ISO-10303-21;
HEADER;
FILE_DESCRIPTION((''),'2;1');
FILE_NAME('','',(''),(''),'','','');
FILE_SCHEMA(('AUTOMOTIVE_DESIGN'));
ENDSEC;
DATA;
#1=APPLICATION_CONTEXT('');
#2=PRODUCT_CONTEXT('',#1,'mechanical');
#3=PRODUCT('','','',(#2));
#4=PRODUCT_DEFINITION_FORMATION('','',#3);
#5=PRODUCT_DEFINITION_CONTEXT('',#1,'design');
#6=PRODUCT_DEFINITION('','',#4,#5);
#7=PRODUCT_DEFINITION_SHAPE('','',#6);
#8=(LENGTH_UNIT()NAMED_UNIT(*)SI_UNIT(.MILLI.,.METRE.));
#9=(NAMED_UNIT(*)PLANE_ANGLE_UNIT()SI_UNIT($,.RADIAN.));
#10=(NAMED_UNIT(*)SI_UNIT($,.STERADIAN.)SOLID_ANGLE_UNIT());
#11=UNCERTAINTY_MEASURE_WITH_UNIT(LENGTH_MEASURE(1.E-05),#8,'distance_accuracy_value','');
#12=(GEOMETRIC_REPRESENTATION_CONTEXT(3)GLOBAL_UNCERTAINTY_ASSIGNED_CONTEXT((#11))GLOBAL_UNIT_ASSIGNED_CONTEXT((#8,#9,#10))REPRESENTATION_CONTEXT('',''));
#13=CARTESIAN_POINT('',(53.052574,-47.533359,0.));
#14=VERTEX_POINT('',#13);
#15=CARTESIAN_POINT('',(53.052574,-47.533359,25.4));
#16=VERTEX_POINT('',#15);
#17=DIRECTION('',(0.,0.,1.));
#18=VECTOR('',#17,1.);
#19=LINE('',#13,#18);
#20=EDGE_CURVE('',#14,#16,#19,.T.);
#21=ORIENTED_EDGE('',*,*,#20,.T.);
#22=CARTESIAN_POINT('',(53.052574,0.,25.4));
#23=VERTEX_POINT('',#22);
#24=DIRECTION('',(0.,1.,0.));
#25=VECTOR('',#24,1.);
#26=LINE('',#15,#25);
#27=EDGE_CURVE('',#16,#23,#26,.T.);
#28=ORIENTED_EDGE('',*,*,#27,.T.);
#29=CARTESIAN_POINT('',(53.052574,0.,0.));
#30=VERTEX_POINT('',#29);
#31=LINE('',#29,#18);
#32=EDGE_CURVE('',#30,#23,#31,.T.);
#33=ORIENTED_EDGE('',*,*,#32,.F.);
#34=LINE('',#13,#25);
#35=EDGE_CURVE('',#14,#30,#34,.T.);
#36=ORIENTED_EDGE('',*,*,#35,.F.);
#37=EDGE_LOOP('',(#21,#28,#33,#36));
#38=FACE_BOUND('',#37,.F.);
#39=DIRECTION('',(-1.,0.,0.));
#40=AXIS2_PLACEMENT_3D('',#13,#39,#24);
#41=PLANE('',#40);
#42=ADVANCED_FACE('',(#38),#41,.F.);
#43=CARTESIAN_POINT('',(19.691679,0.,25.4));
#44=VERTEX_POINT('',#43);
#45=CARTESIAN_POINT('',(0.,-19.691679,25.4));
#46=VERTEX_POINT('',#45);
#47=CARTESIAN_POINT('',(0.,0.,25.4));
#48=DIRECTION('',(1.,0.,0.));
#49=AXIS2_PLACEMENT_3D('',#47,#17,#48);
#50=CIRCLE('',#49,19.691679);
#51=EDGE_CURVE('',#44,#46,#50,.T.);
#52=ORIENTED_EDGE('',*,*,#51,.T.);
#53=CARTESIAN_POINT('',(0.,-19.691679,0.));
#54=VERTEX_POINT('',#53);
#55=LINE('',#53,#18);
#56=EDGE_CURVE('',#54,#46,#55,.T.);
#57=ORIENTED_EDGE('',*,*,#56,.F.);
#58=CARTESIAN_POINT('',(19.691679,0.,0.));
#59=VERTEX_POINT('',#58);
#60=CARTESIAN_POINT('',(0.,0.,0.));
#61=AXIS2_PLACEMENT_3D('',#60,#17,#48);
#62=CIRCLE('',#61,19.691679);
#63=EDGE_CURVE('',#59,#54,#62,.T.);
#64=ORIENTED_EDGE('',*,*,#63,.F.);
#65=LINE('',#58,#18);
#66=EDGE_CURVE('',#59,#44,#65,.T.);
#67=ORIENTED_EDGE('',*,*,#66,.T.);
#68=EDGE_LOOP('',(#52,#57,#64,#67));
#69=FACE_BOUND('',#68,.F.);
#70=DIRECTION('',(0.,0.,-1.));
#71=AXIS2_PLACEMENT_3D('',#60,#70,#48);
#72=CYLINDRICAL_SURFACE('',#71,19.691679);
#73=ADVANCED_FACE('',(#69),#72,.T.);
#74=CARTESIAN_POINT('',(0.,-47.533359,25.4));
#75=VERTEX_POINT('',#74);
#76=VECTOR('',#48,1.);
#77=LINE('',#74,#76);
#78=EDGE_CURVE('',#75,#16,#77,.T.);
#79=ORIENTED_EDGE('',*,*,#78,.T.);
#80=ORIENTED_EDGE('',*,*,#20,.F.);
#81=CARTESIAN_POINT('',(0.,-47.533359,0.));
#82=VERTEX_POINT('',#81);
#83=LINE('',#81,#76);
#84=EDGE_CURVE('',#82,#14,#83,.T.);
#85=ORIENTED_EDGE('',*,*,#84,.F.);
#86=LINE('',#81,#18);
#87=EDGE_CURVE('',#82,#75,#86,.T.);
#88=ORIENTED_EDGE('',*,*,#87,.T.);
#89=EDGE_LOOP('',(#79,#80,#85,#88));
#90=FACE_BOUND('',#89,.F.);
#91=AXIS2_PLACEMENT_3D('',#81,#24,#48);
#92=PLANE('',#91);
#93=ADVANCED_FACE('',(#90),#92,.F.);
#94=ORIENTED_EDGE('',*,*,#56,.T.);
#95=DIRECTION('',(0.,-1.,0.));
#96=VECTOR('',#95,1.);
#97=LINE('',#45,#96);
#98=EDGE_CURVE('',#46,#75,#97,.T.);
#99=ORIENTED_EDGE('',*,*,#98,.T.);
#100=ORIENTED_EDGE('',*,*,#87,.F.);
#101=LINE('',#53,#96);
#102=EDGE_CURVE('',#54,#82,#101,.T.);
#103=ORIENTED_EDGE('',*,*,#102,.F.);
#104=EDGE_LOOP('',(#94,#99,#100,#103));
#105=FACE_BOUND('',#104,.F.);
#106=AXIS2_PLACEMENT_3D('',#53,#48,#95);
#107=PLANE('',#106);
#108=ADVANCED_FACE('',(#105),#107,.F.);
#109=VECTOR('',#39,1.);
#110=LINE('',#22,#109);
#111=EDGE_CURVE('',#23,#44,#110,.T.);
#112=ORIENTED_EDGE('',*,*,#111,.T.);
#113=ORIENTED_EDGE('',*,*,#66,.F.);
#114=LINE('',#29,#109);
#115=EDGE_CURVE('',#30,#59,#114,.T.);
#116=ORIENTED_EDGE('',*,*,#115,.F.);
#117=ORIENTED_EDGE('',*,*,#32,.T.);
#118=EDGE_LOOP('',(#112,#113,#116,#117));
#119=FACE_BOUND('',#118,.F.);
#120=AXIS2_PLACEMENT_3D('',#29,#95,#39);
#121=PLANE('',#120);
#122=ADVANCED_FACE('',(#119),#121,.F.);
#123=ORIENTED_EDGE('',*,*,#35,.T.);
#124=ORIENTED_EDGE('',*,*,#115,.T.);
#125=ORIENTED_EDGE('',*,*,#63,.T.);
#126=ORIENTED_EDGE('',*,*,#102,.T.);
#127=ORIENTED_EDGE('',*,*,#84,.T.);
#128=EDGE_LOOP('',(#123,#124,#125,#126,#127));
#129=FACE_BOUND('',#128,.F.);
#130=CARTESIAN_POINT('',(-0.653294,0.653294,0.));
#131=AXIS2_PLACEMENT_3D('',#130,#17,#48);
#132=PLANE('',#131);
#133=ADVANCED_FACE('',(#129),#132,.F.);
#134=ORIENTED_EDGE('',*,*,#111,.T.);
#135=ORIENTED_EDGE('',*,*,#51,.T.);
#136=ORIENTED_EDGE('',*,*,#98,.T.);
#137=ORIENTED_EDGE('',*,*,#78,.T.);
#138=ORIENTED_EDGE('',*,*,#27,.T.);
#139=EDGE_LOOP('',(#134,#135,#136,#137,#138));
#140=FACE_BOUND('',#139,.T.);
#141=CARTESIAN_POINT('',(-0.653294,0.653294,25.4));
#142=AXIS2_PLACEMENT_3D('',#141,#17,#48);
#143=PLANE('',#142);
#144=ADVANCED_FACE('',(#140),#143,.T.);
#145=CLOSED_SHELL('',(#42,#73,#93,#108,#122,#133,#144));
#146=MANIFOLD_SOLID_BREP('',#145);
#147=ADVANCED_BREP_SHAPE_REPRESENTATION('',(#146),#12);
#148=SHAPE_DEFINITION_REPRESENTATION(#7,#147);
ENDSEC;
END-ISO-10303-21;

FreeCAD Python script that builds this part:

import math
import FreeCAD as App
import Part
import Sketcher
from FreeCAD import Vector
Q = App.Units.Quantity

doc = App.newDocument("Part")
body = doc.addObject("PartDesign::Body", "Body")

sketch1 = body.newObject("Sketcher::SketchObject", "Sketch")
sketch1.AttachmentSupport = (doc.getObject("XY_Plane"), [""])
sketch1.MapMode = "FlatFace"
sketch1.addGeometry([
    Part.ArcOfCircle(Part.Circle(Vector(0, 0, 0), Vector(0, 0, 1), 20), math.radians(0), math.radians(270)),
    Part.LineSegment(Vector(0, -20, 0), Vector(0, -48, 0)),
    Part.LineSegment(Vector(0, -48, 0), Vector(53, -48, 0)),
    Part.LineSegment(Vector(53, -48, 0), Vector(53, 0, 0)),
    Part.LineSegment(Vector(53, 0, 0), Vector(20, 0, 0)),
], False)
sketch1.addConstraint([
    Sketcher.Constraint("Coincident", 0, 2, 1, 1),
    Sketcher.Constraint("Coincident", 1, 2, 2, 1),
    Sketcher.Constraint("Coincident", 2, 2, 3, 1),
    Sketcher.Constraint("Coincident", 3, 2, 4, 1),
    Sketcher.Constraint("Coincident", 4, 2, 0, 1),
    Sketcher.Constraint("Vertical", 1),
    Sketcher.Constraint("Horizontal", 2),
    Sketcher.Constraint("Vertical", 3),
    Sketcher.Constraint("Horizontal", 4),
    Sketcher.Constraint("Coincident", 0, 3, -1, 1),
    Sketcher.Constraint("PointOnObject", 0, 2, -2),
    Sketcher.Constraint("PointOnObject", 3, 2, -1),
    Sketcher.Constraint("Radius", 0, 19.691679),
    Sketcher.Constraint("DistanceY", 1, 2, 1, 1, 27.84168),
    Sketcher.Constraint("DistanceX", 2, 1, 2, 2, 53.052574),
])
pad1 = body.newObject("PartDesign::Pad", "Pad")
pad1.Profile = sketch1
pad1.Length = Q("1 in")

doc.recompute()
